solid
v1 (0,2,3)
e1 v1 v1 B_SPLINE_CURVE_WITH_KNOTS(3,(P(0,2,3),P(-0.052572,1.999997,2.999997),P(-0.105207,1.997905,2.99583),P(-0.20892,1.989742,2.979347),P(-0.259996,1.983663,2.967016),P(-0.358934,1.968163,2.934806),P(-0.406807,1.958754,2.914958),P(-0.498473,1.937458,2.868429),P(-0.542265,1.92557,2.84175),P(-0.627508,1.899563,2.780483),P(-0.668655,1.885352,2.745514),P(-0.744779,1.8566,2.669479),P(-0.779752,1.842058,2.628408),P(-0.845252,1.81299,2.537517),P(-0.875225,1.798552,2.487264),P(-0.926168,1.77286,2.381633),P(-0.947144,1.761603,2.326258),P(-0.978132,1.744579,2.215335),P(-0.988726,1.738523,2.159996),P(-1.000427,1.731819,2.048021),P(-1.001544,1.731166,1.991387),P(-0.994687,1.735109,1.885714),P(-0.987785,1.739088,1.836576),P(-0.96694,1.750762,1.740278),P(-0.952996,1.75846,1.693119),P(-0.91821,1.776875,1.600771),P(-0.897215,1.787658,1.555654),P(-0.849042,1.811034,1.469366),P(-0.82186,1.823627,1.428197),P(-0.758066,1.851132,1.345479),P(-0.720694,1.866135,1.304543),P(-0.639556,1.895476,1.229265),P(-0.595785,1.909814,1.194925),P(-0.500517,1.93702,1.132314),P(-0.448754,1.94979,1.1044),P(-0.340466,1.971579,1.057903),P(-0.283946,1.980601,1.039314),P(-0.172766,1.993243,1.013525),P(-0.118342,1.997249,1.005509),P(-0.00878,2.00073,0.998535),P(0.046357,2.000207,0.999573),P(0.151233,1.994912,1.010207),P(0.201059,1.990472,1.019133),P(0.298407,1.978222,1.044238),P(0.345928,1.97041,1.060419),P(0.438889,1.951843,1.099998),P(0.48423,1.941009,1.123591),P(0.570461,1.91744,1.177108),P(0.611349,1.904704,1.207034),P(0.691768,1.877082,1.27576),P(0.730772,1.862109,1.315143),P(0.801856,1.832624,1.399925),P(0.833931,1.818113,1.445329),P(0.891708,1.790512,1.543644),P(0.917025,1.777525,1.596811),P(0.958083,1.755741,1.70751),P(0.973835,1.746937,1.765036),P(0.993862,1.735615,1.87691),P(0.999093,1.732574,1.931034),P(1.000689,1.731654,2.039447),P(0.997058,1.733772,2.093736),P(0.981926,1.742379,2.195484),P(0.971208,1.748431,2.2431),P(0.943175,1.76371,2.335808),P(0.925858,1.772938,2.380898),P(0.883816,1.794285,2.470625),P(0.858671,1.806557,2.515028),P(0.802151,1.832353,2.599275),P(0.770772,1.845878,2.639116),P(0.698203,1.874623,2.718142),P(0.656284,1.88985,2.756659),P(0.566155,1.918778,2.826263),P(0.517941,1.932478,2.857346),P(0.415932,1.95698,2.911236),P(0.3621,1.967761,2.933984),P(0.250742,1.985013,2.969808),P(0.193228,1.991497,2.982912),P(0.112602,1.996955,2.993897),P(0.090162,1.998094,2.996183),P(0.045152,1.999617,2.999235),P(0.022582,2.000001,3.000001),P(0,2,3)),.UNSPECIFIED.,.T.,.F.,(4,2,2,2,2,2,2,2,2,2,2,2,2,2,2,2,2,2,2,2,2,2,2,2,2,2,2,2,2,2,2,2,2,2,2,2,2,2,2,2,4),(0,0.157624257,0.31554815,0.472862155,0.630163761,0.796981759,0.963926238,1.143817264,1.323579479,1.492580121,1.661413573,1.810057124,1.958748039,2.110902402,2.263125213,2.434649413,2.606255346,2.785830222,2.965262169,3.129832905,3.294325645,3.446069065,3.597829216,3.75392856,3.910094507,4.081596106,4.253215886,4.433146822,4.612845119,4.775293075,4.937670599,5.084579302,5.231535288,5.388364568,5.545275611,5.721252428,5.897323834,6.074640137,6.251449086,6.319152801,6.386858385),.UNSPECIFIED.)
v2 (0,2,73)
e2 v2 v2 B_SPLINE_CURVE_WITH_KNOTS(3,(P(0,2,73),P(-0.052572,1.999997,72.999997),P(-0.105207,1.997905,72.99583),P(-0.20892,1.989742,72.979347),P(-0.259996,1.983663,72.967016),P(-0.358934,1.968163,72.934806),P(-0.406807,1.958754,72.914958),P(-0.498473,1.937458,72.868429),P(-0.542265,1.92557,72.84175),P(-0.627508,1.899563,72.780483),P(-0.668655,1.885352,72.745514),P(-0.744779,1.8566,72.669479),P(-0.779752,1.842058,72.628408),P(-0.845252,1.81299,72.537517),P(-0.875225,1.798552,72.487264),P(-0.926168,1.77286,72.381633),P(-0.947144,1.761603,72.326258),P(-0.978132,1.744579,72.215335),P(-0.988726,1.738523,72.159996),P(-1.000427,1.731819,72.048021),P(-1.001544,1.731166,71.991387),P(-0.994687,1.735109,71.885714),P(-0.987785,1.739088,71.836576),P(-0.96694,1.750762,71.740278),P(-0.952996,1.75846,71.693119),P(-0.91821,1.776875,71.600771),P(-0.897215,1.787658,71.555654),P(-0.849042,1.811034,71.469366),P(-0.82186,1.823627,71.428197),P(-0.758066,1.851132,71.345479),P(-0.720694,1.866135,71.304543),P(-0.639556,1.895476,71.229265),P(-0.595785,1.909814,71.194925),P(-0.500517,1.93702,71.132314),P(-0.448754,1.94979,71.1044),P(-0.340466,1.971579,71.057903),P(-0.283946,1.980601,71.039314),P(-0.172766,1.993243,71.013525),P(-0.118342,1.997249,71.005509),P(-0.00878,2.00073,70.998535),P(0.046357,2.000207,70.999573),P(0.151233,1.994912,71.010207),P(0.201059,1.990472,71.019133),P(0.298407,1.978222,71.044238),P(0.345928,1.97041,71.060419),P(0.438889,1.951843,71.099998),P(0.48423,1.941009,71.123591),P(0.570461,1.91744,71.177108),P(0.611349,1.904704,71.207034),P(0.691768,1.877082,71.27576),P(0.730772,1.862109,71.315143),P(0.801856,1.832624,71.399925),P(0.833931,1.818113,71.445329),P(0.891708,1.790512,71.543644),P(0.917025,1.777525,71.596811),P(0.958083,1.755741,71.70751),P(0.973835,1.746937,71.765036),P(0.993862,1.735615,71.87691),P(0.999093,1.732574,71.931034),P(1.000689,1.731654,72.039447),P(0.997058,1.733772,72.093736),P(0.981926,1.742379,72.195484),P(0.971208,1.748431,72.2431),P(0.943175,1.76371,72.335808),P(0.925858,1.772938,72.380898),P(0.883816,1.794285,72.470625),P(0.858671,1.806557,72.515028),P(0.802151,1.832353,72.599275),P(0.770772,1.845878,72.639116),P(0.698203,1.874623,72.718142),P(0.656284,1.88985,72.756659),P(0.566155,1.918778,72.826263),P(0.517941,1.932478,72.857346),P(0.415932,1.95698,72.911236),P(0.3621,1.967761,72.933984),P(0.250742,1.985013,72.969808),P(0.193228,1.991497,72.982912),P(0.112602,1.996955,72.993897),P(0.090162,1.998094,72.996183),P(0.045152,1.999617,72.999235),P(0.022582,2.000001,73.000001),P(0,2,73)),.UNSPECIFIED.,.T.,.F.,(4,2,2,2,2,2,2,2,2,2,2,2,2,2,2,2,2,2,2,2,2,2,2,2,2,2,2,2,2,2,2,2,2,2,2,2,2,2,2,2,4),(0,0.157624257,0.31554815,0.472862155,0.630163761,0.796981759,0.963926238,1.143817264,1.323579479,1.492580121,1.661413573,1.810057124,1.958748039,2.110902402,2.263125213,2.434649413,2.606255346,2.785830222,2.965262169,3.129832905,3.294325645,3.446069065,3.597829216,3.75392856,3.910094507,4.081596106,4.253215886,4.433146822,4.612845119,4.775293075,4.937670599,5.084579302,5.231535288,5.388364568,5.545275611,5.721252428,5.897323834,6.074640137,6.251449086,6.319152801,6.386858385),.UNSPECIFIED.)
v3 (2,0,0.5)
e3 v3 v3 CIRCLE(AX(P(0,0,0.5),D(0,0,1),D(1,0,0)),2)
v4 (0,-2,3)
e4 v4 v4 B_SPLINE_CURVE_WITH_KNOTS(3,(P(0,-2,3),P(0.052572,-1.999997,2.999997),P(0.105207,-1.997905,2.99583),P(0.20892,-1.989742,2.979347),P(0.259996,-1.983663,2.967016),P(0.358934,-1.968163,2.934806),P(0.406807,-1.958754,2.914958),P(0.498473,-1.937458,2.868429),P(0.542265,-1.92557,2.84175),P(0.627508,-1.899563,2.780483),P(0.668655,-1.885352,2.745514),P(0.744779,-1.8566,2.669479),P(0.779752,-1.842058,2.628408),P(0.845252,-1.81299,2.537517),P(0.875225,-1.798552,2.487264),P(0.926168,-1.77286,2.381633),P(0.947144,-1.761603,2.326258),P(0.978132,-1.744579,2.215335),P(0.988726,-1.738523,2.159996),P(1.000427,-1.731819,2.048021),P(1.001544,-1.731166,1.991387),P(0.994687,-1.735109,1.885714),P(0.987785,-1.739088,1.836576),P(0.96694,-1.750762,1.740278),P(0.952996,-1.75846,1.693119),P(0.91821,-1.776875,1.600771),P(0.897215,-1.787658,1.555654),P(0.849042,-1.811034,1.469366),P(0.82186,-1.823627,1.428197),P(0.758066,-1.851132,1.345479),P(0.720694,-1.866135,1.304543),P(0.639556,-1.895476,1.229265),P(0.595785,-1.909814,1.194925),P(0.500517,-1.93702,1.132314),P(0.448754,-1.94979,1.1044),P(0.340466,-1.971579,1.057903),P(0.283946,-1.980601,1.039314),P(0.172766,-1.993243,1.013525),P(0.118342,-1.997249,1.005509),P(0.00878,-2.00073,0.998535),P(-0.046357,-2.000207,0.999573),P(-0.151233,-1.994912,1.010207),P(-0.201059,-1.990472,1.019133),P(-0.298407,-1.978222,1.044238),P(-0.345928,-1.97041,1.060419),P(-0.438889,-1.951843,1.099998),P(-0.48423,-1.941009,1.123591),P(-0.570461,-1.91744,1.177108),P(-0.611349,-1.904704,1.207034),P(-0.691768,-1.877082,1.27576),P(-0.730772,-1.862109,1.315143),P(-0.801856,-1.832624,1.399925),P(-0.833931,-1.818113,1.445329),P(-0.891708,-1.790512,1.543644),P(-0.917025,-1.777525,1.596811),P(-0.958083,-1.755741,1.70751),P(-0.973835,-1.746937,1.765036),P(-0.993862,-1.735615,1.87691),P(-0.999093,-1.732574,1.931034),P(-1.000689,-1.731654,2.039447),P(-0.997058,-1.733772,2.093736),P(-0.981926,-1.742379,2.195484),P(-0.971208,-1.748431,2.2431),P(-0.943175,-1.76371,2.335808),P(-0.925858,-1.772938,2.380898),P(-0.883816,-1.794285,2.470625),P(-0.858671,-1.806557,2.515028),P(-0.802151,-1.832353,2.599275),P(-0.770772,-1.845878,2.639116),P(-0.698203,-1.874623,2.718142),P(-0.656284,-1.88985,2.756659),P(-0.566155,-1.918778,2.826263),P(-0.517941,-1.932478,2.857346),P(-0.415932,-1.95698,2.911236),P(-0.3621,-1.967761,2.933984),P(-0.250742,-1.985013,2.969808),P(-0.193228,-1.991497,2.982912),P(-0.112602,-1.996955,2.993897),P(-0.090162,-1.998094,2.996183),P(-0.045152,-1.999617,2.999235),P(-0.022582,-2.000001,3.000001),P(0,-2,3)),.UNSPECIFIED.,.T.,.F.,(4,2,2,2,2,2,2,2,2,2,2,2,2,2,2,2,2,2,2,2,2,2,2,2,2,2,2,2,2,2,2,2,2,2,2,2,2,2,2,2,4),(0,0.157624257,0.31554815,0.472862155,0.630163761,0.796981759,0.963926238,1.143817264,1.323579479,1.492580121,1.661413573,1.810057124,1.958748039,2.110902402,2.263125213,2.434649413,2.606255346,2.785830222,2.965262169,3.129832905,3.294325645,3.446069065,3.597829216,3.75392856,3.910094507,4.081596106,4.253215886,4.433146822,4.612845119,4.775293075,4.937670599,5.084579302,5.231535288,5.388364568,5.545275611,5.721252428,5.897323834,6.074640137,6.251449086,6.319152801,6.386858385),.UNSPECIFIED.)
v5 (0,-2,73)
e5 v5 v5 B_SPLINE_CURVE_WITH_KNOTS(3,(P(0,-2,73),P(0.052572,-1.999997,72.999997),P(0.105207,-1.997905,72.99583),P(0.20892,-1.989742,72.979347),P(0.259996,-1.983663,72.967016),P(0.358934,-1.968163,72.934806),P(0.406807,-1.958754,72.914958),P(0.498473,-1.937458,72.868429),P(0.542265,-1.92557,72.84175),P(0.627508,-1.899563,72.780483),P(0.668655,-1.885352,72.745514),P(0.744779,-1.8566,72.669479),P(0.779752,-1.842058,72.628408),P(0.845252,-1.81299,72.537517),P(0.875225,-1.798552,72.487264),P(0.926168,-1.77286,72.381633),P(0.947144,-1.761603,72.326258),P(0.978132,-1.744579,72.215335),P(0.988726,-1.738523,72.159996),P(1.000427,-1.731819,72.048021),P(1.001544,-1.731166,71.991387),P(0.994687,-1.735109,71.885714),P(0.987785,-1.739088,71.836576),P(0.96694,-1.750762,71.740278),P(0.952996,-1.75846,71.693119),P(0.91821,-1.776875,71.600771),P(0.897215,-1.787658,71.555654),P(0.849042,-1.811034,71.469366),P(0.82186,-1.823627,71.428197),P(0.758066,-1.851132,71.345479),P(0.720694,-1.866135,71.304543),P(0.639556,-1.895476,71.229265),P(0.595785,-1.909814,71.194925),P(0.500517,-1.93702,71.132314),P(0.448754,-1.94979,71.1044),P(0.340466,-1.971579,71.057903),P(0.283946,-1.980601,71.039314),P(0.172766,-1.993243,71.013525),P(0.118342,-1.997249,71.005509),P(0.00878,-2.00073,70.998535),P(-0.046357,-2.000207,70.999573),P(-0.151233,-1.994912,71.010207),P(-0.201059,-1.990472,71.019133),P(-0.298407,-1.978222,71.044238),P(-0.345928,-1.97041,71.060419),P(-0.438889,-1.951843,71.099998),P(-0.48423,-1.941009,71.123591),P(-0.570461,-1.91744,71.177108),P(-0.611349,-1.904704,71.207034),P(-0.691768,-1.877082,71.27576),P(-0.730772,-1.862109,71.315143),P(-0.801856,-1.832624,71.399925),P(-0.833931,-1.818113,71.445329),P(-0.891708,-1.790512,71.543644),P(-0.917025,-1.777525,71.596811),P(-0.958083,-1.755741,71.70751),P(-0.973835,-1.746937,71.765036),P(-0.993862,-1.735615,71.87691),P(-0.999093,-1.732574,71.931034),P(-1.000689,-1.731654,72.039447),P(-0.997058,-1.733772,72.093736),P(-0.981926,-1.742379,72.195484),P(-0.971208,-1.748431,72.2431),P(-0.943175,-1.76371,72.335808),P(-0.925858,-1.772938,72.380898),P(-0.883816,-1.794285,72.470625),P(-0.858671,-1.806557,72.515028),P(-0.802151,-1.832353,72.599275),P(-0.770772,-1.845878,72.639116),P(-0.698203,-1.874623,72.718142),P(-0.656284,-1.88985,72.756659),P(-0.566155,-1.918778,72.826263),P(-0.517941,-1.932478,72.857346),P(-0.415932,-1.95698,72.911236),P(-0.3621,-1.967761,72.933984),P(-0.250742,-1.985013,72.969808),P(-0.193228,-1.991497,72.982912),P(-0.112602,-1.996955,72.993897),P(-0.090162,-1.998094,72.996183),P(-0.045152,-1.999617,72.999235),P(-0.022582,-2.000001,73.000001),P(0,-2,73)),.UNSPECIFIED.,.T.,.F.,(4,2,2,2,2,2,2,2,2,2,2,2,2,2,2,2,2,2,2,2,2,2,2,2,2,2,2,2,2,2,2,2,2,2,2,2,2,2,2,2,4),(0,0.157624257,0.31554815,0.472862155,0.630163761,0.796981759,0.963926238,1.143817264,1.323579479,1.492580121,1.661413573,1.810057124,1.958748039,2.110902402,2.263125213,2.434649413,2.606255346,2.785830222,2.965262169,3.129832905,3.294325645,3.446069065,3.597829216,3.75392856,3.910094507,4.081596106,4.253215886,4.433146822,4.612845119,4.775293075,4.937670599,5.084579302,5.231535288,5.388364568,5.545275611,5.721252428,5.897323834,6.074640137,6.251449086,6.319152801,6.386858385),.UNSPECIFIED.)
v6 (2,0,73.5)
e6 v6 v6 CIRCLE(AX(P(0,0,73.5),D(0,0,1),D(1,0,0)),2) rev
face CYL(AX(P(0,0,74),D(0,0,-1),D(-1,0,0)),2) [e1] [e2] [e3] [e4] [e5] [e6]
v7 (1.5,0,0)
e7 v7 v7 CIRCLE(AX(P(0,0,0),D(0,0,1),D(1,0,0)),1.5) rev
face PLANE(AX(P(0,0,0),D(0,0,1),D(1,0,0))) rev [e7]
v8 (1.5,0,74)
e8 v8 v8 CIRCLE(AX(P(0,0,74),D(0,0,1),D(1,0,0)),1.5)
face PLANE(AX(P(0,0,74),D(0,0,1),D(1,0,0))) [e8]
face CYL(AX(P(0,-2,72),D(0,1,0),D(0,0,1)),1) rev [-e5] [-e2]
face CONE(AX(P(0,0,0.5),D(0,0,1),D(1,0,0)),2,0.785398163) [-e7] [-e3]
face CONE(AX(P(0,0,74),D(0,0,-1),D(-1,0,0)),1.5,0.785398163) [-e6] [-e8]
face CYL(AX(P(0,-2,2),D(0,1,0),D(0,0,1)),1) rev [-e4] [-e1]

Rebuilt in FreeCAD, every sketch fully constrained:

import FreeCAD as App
import Part
import Sketcher
from FreeCAD import Vector
Q = App.Units.Quantity


def edges_at(feature, points):
    """Names of the edges that pass closest to the given points."""
    edges = feature.Shape.Edges
    near = lambda p: min(range(len(edges)), key=lambda i: edges[i].distToShape(Part.Vertex(*p))[0])
    return sorted({f"Edge{near(p) + 1}" for p in points})

doc = App.newDocument("Part")
body = doc.addObject("PartDesign::Body", "Body")

sketch1 = body.newObject("Sketcher::SketchObject", "Sketch")
sketch1.AttachmentSupport = (doc.getObject("XY_Plane"), [""])
sketch1.MapMode = "FlatFace"
sketch1.addGeometry(Part.Circle(Vector(0, 0, 0), Vector(0, 0, 1), 2), False)
sketch1.addConstraint(Sketcher.Constraint("Coincident", 0, 3, -1, 1))
sketch1.addConstraint(Sketcher.Constraint("Diameter", 0, Q("4 mm")))
pad1 = body.newObject("PartDesign::Pad", "Pad")
pad1.Profile = sketch1
pad1.Length = 74
doc.recompute()

chamfer = body.newObject("PartDesign::Chamfer", "Chamfer")
chamfer.Base = (pad1, edges_at(pad1, [(-2, 0, 0), (-2, 0, 74)]))
chamfer.Size = 0.5

sketch2 = body.newObject("Sketcher::SketchObject", "Sketch001")
sketch2.AttachmentSupport = (doc.getObject("XZ_Plane"), [""])
sketch2.MapMode = "FlatFace"
sketch2.addGeometry(Part.Circle(Vector(0, 2, 0), Vector(0, 0, 1), 1), False)
sketch2.addGeometry(Part.Circle(Vector(0, 72, 0), Vector(0, 0, 1), 1), False)
sketch2.addConstraint(Sketcher.Constraint("Equal", 0, 1))
sketch2.addConstraint(Sketcher.Constraint("PointOnObject", 0, 3, -2))
sketch2.addConstraint(Sketcher.Constraint("PointOnObject", 1, 3, -2))
sketch2.addConstraint(Sketcher.Constraint("Diameter", 0, Q("2 mm")))
sketch2.addConstraint(Sketcher.Constraint("DistanceY", -1, 1, 0, 3, Q("2 mm")))
sketch2.addConstraint(Sketcher.Constraint("DistanceY", -1, 1, 1, 3, Q("72 mm")))
pocket1 = body.newObject("PartDesign::Pocket", "Pocket")
pocket1.Profile = sketch2
pocket1.Type = "ThroughAll"
pocket1.Midplane = True

doc.recompute()
